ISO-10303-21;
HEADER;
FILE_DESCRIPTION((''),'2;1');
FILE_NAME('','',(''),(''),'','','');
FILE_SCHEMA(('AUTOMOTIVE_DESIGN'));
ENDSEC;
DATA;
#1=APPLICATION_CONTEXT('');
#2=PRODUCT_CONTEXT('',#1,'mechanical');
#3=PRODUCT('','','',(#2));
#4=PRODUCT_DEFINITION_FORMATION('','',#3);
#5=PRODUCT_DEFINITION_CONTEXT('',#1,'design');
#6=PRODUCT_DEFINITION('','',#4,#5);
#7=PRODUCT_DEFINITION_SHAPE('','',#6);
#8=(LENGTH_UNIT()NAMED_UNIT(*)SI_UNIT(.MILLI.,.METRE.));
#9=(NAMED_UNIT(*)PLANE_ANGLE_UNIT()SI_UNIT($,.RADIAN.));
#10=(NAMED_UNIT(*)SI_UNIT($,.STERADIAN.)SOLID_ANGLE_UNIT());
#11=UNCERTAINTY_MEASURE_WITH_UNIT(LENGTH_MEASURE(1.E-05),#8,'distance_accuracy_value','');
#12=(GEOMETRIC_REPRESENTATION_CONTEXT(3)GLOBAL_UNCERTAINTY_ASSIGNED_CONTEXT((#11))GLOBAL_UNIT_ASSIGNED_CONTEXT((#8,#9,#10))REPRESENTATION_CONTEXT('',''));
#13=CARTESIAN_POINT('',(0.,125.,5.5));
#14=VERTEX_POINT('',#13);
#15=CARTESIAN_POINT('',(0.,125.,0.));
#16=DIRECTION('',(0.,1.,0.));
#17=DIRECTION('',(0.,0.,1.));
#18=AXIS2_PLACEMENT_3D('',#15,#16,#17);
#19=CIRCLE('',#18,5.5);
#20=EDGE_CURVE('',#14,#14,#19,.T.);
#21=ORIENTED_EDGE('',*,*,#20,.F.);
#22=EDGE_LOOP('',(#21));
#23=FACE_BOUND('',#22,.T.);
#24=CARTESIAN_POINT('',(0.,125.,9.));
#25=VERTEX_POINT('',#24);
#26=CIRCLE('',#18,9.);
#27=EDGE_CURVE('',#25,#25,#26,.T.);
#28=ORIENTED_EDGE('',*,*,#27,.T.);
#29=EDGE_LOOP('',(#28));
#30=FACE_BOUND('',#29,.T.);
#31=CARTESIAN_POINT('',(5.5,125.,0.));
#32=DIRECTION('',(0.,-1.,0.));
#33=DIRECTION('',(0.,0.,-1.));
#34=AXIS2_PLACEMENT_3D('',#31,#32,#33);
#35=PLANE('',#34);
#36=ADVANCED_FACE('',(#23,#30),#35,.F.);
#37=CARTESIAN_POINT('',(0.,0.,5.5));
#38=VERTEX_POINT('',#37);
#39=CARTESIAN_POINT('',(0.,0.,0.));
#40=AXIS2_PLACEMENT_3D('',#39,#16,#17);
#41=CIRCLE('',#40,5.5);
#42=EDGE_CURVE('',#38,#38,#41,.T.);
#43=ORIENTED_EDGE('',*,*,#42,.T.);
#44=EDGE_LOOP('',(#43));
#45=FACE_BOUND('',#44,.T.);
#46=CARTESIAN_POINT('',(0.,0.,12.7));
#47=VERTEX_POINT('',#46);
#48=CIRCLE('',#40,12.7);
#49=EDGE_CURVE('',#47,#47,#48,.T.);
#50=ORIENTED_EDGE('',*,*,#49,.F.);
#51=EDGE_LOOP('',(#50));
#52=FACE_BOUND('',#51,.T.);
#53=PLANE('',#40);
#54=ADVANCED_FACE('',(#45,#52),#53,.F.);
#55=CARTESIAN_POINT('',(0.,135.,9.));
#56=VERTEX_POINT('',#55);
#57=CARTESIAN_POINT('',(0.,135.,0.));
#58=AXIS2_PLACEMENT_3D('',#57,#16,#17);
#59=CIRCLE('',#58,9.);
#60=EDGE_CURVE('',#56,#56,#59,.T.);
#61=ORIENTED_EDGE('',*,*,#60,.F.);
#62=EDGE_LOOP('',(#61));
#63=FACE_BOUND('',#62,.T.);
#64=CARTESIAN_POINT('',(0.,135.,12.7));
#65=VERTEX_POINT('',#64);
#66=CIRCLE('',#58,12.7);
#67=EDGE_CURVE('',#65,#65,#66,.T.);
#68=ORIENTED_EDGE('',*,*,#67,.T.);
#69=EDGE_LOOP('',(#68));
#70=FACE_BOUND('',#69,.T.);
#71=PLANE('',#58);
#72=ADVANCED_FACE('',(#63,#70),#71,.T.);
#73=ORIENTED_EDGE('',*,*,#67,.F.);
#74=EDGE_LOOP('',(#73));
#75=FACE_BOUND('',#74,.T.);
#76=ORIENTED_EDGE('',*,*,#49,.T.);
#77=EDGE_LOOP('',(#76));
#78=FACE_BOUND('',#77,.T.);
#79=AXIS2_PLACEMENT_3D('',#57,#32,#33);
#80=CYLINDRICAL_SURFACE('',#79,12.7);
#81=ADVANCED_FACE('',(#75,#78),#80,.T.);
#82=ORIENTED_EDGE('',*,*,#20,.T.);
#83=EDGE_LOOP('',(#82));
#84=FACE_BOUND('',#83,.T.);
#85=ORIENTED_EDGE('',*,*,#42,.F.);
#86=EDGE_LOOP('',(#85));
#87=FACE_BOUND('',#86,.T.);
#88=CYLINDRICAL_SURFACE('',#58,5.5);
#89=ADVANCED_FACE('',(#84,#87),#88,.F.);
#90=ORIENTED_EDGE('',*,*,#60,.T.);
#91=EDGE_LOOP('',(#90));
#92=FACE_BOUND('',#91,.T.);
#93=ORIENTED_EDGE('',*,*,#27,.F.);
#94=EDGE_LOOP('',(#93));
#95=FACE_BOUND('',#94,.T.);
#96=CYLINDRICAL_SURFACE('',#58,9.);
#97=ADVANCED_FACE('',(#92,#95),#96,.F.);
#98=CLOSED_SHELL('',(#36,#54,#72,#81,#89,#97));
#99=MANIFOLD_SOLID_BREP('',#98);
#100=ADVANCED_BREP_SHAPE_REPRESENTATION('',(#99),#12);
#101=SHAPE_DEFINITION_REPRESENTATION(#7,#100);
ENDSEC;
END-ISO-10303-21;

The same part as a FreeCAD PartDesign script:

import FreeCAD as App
import Part
import Sketcher

V = App.Vector
Q = App.Units.Quantity

doc = App.newDocument("Part")
body = doc.addObject("PartDesign::Body", "Body")

sketch1 = body.newObject("Sketcher::SketchObject", "Sketch")
sketch1.AttachmentSupport = (doc.getObject("XZ_Plane"), [""])
sketch1.MapMode = "FlatFace"
sketch1.addGeometry(Part.Circle(V(0, 0, 0), V(0, 0, 1), 13), False)
sketch1.addConstraint(Sketcher.Constraint("Coincident", 0, 3, -1, 1))
sketch1.addConstraint(Sketcher.Constraint("Diameter", 0, Q("25.4 mm")))
pad1 = body.newObject("PartDesign::Pad", "Pad")
pad1.Profile = sketch1
pad1.Length = 135
pad1.Reversed = True

sketch2 = body.newObject("Sketcher::SketchObject", "Sketch001")
sketch2.AttachmentSupport = (doc.getObject("XZ_Plane"), [""])
sketch2.MapMode = "FlatFace"
sketch2.AttachmentOffset = App.Placement(V(0, 0, -135), App.Rotation())
sketch2.addGeometry(Part.Circle(V(0, 0, 0), V(0, 0, 1), 6), False)
sketch2.addConstraint(Sketcher.Constraint("Coincident", 0, 3, -1, 1))
sketch2.addConstraint(Sketcher.Constraint("Diameter", 0, Q("11 mm")))
doc.recompute()
hole = body.newObject("PartDesign::Hole", "Hole")
hole.Profile = sketch2
hole.ThreadType = "None"
hole.Diameter = 11
hole.DepthType = "ThroughAll"
hole.HoleCutType = "Counterbore"
hole.HoleCutDiameter = 18
hole.HoleCutDepth = 10
hole.Reversed = True

doc.recompute()
